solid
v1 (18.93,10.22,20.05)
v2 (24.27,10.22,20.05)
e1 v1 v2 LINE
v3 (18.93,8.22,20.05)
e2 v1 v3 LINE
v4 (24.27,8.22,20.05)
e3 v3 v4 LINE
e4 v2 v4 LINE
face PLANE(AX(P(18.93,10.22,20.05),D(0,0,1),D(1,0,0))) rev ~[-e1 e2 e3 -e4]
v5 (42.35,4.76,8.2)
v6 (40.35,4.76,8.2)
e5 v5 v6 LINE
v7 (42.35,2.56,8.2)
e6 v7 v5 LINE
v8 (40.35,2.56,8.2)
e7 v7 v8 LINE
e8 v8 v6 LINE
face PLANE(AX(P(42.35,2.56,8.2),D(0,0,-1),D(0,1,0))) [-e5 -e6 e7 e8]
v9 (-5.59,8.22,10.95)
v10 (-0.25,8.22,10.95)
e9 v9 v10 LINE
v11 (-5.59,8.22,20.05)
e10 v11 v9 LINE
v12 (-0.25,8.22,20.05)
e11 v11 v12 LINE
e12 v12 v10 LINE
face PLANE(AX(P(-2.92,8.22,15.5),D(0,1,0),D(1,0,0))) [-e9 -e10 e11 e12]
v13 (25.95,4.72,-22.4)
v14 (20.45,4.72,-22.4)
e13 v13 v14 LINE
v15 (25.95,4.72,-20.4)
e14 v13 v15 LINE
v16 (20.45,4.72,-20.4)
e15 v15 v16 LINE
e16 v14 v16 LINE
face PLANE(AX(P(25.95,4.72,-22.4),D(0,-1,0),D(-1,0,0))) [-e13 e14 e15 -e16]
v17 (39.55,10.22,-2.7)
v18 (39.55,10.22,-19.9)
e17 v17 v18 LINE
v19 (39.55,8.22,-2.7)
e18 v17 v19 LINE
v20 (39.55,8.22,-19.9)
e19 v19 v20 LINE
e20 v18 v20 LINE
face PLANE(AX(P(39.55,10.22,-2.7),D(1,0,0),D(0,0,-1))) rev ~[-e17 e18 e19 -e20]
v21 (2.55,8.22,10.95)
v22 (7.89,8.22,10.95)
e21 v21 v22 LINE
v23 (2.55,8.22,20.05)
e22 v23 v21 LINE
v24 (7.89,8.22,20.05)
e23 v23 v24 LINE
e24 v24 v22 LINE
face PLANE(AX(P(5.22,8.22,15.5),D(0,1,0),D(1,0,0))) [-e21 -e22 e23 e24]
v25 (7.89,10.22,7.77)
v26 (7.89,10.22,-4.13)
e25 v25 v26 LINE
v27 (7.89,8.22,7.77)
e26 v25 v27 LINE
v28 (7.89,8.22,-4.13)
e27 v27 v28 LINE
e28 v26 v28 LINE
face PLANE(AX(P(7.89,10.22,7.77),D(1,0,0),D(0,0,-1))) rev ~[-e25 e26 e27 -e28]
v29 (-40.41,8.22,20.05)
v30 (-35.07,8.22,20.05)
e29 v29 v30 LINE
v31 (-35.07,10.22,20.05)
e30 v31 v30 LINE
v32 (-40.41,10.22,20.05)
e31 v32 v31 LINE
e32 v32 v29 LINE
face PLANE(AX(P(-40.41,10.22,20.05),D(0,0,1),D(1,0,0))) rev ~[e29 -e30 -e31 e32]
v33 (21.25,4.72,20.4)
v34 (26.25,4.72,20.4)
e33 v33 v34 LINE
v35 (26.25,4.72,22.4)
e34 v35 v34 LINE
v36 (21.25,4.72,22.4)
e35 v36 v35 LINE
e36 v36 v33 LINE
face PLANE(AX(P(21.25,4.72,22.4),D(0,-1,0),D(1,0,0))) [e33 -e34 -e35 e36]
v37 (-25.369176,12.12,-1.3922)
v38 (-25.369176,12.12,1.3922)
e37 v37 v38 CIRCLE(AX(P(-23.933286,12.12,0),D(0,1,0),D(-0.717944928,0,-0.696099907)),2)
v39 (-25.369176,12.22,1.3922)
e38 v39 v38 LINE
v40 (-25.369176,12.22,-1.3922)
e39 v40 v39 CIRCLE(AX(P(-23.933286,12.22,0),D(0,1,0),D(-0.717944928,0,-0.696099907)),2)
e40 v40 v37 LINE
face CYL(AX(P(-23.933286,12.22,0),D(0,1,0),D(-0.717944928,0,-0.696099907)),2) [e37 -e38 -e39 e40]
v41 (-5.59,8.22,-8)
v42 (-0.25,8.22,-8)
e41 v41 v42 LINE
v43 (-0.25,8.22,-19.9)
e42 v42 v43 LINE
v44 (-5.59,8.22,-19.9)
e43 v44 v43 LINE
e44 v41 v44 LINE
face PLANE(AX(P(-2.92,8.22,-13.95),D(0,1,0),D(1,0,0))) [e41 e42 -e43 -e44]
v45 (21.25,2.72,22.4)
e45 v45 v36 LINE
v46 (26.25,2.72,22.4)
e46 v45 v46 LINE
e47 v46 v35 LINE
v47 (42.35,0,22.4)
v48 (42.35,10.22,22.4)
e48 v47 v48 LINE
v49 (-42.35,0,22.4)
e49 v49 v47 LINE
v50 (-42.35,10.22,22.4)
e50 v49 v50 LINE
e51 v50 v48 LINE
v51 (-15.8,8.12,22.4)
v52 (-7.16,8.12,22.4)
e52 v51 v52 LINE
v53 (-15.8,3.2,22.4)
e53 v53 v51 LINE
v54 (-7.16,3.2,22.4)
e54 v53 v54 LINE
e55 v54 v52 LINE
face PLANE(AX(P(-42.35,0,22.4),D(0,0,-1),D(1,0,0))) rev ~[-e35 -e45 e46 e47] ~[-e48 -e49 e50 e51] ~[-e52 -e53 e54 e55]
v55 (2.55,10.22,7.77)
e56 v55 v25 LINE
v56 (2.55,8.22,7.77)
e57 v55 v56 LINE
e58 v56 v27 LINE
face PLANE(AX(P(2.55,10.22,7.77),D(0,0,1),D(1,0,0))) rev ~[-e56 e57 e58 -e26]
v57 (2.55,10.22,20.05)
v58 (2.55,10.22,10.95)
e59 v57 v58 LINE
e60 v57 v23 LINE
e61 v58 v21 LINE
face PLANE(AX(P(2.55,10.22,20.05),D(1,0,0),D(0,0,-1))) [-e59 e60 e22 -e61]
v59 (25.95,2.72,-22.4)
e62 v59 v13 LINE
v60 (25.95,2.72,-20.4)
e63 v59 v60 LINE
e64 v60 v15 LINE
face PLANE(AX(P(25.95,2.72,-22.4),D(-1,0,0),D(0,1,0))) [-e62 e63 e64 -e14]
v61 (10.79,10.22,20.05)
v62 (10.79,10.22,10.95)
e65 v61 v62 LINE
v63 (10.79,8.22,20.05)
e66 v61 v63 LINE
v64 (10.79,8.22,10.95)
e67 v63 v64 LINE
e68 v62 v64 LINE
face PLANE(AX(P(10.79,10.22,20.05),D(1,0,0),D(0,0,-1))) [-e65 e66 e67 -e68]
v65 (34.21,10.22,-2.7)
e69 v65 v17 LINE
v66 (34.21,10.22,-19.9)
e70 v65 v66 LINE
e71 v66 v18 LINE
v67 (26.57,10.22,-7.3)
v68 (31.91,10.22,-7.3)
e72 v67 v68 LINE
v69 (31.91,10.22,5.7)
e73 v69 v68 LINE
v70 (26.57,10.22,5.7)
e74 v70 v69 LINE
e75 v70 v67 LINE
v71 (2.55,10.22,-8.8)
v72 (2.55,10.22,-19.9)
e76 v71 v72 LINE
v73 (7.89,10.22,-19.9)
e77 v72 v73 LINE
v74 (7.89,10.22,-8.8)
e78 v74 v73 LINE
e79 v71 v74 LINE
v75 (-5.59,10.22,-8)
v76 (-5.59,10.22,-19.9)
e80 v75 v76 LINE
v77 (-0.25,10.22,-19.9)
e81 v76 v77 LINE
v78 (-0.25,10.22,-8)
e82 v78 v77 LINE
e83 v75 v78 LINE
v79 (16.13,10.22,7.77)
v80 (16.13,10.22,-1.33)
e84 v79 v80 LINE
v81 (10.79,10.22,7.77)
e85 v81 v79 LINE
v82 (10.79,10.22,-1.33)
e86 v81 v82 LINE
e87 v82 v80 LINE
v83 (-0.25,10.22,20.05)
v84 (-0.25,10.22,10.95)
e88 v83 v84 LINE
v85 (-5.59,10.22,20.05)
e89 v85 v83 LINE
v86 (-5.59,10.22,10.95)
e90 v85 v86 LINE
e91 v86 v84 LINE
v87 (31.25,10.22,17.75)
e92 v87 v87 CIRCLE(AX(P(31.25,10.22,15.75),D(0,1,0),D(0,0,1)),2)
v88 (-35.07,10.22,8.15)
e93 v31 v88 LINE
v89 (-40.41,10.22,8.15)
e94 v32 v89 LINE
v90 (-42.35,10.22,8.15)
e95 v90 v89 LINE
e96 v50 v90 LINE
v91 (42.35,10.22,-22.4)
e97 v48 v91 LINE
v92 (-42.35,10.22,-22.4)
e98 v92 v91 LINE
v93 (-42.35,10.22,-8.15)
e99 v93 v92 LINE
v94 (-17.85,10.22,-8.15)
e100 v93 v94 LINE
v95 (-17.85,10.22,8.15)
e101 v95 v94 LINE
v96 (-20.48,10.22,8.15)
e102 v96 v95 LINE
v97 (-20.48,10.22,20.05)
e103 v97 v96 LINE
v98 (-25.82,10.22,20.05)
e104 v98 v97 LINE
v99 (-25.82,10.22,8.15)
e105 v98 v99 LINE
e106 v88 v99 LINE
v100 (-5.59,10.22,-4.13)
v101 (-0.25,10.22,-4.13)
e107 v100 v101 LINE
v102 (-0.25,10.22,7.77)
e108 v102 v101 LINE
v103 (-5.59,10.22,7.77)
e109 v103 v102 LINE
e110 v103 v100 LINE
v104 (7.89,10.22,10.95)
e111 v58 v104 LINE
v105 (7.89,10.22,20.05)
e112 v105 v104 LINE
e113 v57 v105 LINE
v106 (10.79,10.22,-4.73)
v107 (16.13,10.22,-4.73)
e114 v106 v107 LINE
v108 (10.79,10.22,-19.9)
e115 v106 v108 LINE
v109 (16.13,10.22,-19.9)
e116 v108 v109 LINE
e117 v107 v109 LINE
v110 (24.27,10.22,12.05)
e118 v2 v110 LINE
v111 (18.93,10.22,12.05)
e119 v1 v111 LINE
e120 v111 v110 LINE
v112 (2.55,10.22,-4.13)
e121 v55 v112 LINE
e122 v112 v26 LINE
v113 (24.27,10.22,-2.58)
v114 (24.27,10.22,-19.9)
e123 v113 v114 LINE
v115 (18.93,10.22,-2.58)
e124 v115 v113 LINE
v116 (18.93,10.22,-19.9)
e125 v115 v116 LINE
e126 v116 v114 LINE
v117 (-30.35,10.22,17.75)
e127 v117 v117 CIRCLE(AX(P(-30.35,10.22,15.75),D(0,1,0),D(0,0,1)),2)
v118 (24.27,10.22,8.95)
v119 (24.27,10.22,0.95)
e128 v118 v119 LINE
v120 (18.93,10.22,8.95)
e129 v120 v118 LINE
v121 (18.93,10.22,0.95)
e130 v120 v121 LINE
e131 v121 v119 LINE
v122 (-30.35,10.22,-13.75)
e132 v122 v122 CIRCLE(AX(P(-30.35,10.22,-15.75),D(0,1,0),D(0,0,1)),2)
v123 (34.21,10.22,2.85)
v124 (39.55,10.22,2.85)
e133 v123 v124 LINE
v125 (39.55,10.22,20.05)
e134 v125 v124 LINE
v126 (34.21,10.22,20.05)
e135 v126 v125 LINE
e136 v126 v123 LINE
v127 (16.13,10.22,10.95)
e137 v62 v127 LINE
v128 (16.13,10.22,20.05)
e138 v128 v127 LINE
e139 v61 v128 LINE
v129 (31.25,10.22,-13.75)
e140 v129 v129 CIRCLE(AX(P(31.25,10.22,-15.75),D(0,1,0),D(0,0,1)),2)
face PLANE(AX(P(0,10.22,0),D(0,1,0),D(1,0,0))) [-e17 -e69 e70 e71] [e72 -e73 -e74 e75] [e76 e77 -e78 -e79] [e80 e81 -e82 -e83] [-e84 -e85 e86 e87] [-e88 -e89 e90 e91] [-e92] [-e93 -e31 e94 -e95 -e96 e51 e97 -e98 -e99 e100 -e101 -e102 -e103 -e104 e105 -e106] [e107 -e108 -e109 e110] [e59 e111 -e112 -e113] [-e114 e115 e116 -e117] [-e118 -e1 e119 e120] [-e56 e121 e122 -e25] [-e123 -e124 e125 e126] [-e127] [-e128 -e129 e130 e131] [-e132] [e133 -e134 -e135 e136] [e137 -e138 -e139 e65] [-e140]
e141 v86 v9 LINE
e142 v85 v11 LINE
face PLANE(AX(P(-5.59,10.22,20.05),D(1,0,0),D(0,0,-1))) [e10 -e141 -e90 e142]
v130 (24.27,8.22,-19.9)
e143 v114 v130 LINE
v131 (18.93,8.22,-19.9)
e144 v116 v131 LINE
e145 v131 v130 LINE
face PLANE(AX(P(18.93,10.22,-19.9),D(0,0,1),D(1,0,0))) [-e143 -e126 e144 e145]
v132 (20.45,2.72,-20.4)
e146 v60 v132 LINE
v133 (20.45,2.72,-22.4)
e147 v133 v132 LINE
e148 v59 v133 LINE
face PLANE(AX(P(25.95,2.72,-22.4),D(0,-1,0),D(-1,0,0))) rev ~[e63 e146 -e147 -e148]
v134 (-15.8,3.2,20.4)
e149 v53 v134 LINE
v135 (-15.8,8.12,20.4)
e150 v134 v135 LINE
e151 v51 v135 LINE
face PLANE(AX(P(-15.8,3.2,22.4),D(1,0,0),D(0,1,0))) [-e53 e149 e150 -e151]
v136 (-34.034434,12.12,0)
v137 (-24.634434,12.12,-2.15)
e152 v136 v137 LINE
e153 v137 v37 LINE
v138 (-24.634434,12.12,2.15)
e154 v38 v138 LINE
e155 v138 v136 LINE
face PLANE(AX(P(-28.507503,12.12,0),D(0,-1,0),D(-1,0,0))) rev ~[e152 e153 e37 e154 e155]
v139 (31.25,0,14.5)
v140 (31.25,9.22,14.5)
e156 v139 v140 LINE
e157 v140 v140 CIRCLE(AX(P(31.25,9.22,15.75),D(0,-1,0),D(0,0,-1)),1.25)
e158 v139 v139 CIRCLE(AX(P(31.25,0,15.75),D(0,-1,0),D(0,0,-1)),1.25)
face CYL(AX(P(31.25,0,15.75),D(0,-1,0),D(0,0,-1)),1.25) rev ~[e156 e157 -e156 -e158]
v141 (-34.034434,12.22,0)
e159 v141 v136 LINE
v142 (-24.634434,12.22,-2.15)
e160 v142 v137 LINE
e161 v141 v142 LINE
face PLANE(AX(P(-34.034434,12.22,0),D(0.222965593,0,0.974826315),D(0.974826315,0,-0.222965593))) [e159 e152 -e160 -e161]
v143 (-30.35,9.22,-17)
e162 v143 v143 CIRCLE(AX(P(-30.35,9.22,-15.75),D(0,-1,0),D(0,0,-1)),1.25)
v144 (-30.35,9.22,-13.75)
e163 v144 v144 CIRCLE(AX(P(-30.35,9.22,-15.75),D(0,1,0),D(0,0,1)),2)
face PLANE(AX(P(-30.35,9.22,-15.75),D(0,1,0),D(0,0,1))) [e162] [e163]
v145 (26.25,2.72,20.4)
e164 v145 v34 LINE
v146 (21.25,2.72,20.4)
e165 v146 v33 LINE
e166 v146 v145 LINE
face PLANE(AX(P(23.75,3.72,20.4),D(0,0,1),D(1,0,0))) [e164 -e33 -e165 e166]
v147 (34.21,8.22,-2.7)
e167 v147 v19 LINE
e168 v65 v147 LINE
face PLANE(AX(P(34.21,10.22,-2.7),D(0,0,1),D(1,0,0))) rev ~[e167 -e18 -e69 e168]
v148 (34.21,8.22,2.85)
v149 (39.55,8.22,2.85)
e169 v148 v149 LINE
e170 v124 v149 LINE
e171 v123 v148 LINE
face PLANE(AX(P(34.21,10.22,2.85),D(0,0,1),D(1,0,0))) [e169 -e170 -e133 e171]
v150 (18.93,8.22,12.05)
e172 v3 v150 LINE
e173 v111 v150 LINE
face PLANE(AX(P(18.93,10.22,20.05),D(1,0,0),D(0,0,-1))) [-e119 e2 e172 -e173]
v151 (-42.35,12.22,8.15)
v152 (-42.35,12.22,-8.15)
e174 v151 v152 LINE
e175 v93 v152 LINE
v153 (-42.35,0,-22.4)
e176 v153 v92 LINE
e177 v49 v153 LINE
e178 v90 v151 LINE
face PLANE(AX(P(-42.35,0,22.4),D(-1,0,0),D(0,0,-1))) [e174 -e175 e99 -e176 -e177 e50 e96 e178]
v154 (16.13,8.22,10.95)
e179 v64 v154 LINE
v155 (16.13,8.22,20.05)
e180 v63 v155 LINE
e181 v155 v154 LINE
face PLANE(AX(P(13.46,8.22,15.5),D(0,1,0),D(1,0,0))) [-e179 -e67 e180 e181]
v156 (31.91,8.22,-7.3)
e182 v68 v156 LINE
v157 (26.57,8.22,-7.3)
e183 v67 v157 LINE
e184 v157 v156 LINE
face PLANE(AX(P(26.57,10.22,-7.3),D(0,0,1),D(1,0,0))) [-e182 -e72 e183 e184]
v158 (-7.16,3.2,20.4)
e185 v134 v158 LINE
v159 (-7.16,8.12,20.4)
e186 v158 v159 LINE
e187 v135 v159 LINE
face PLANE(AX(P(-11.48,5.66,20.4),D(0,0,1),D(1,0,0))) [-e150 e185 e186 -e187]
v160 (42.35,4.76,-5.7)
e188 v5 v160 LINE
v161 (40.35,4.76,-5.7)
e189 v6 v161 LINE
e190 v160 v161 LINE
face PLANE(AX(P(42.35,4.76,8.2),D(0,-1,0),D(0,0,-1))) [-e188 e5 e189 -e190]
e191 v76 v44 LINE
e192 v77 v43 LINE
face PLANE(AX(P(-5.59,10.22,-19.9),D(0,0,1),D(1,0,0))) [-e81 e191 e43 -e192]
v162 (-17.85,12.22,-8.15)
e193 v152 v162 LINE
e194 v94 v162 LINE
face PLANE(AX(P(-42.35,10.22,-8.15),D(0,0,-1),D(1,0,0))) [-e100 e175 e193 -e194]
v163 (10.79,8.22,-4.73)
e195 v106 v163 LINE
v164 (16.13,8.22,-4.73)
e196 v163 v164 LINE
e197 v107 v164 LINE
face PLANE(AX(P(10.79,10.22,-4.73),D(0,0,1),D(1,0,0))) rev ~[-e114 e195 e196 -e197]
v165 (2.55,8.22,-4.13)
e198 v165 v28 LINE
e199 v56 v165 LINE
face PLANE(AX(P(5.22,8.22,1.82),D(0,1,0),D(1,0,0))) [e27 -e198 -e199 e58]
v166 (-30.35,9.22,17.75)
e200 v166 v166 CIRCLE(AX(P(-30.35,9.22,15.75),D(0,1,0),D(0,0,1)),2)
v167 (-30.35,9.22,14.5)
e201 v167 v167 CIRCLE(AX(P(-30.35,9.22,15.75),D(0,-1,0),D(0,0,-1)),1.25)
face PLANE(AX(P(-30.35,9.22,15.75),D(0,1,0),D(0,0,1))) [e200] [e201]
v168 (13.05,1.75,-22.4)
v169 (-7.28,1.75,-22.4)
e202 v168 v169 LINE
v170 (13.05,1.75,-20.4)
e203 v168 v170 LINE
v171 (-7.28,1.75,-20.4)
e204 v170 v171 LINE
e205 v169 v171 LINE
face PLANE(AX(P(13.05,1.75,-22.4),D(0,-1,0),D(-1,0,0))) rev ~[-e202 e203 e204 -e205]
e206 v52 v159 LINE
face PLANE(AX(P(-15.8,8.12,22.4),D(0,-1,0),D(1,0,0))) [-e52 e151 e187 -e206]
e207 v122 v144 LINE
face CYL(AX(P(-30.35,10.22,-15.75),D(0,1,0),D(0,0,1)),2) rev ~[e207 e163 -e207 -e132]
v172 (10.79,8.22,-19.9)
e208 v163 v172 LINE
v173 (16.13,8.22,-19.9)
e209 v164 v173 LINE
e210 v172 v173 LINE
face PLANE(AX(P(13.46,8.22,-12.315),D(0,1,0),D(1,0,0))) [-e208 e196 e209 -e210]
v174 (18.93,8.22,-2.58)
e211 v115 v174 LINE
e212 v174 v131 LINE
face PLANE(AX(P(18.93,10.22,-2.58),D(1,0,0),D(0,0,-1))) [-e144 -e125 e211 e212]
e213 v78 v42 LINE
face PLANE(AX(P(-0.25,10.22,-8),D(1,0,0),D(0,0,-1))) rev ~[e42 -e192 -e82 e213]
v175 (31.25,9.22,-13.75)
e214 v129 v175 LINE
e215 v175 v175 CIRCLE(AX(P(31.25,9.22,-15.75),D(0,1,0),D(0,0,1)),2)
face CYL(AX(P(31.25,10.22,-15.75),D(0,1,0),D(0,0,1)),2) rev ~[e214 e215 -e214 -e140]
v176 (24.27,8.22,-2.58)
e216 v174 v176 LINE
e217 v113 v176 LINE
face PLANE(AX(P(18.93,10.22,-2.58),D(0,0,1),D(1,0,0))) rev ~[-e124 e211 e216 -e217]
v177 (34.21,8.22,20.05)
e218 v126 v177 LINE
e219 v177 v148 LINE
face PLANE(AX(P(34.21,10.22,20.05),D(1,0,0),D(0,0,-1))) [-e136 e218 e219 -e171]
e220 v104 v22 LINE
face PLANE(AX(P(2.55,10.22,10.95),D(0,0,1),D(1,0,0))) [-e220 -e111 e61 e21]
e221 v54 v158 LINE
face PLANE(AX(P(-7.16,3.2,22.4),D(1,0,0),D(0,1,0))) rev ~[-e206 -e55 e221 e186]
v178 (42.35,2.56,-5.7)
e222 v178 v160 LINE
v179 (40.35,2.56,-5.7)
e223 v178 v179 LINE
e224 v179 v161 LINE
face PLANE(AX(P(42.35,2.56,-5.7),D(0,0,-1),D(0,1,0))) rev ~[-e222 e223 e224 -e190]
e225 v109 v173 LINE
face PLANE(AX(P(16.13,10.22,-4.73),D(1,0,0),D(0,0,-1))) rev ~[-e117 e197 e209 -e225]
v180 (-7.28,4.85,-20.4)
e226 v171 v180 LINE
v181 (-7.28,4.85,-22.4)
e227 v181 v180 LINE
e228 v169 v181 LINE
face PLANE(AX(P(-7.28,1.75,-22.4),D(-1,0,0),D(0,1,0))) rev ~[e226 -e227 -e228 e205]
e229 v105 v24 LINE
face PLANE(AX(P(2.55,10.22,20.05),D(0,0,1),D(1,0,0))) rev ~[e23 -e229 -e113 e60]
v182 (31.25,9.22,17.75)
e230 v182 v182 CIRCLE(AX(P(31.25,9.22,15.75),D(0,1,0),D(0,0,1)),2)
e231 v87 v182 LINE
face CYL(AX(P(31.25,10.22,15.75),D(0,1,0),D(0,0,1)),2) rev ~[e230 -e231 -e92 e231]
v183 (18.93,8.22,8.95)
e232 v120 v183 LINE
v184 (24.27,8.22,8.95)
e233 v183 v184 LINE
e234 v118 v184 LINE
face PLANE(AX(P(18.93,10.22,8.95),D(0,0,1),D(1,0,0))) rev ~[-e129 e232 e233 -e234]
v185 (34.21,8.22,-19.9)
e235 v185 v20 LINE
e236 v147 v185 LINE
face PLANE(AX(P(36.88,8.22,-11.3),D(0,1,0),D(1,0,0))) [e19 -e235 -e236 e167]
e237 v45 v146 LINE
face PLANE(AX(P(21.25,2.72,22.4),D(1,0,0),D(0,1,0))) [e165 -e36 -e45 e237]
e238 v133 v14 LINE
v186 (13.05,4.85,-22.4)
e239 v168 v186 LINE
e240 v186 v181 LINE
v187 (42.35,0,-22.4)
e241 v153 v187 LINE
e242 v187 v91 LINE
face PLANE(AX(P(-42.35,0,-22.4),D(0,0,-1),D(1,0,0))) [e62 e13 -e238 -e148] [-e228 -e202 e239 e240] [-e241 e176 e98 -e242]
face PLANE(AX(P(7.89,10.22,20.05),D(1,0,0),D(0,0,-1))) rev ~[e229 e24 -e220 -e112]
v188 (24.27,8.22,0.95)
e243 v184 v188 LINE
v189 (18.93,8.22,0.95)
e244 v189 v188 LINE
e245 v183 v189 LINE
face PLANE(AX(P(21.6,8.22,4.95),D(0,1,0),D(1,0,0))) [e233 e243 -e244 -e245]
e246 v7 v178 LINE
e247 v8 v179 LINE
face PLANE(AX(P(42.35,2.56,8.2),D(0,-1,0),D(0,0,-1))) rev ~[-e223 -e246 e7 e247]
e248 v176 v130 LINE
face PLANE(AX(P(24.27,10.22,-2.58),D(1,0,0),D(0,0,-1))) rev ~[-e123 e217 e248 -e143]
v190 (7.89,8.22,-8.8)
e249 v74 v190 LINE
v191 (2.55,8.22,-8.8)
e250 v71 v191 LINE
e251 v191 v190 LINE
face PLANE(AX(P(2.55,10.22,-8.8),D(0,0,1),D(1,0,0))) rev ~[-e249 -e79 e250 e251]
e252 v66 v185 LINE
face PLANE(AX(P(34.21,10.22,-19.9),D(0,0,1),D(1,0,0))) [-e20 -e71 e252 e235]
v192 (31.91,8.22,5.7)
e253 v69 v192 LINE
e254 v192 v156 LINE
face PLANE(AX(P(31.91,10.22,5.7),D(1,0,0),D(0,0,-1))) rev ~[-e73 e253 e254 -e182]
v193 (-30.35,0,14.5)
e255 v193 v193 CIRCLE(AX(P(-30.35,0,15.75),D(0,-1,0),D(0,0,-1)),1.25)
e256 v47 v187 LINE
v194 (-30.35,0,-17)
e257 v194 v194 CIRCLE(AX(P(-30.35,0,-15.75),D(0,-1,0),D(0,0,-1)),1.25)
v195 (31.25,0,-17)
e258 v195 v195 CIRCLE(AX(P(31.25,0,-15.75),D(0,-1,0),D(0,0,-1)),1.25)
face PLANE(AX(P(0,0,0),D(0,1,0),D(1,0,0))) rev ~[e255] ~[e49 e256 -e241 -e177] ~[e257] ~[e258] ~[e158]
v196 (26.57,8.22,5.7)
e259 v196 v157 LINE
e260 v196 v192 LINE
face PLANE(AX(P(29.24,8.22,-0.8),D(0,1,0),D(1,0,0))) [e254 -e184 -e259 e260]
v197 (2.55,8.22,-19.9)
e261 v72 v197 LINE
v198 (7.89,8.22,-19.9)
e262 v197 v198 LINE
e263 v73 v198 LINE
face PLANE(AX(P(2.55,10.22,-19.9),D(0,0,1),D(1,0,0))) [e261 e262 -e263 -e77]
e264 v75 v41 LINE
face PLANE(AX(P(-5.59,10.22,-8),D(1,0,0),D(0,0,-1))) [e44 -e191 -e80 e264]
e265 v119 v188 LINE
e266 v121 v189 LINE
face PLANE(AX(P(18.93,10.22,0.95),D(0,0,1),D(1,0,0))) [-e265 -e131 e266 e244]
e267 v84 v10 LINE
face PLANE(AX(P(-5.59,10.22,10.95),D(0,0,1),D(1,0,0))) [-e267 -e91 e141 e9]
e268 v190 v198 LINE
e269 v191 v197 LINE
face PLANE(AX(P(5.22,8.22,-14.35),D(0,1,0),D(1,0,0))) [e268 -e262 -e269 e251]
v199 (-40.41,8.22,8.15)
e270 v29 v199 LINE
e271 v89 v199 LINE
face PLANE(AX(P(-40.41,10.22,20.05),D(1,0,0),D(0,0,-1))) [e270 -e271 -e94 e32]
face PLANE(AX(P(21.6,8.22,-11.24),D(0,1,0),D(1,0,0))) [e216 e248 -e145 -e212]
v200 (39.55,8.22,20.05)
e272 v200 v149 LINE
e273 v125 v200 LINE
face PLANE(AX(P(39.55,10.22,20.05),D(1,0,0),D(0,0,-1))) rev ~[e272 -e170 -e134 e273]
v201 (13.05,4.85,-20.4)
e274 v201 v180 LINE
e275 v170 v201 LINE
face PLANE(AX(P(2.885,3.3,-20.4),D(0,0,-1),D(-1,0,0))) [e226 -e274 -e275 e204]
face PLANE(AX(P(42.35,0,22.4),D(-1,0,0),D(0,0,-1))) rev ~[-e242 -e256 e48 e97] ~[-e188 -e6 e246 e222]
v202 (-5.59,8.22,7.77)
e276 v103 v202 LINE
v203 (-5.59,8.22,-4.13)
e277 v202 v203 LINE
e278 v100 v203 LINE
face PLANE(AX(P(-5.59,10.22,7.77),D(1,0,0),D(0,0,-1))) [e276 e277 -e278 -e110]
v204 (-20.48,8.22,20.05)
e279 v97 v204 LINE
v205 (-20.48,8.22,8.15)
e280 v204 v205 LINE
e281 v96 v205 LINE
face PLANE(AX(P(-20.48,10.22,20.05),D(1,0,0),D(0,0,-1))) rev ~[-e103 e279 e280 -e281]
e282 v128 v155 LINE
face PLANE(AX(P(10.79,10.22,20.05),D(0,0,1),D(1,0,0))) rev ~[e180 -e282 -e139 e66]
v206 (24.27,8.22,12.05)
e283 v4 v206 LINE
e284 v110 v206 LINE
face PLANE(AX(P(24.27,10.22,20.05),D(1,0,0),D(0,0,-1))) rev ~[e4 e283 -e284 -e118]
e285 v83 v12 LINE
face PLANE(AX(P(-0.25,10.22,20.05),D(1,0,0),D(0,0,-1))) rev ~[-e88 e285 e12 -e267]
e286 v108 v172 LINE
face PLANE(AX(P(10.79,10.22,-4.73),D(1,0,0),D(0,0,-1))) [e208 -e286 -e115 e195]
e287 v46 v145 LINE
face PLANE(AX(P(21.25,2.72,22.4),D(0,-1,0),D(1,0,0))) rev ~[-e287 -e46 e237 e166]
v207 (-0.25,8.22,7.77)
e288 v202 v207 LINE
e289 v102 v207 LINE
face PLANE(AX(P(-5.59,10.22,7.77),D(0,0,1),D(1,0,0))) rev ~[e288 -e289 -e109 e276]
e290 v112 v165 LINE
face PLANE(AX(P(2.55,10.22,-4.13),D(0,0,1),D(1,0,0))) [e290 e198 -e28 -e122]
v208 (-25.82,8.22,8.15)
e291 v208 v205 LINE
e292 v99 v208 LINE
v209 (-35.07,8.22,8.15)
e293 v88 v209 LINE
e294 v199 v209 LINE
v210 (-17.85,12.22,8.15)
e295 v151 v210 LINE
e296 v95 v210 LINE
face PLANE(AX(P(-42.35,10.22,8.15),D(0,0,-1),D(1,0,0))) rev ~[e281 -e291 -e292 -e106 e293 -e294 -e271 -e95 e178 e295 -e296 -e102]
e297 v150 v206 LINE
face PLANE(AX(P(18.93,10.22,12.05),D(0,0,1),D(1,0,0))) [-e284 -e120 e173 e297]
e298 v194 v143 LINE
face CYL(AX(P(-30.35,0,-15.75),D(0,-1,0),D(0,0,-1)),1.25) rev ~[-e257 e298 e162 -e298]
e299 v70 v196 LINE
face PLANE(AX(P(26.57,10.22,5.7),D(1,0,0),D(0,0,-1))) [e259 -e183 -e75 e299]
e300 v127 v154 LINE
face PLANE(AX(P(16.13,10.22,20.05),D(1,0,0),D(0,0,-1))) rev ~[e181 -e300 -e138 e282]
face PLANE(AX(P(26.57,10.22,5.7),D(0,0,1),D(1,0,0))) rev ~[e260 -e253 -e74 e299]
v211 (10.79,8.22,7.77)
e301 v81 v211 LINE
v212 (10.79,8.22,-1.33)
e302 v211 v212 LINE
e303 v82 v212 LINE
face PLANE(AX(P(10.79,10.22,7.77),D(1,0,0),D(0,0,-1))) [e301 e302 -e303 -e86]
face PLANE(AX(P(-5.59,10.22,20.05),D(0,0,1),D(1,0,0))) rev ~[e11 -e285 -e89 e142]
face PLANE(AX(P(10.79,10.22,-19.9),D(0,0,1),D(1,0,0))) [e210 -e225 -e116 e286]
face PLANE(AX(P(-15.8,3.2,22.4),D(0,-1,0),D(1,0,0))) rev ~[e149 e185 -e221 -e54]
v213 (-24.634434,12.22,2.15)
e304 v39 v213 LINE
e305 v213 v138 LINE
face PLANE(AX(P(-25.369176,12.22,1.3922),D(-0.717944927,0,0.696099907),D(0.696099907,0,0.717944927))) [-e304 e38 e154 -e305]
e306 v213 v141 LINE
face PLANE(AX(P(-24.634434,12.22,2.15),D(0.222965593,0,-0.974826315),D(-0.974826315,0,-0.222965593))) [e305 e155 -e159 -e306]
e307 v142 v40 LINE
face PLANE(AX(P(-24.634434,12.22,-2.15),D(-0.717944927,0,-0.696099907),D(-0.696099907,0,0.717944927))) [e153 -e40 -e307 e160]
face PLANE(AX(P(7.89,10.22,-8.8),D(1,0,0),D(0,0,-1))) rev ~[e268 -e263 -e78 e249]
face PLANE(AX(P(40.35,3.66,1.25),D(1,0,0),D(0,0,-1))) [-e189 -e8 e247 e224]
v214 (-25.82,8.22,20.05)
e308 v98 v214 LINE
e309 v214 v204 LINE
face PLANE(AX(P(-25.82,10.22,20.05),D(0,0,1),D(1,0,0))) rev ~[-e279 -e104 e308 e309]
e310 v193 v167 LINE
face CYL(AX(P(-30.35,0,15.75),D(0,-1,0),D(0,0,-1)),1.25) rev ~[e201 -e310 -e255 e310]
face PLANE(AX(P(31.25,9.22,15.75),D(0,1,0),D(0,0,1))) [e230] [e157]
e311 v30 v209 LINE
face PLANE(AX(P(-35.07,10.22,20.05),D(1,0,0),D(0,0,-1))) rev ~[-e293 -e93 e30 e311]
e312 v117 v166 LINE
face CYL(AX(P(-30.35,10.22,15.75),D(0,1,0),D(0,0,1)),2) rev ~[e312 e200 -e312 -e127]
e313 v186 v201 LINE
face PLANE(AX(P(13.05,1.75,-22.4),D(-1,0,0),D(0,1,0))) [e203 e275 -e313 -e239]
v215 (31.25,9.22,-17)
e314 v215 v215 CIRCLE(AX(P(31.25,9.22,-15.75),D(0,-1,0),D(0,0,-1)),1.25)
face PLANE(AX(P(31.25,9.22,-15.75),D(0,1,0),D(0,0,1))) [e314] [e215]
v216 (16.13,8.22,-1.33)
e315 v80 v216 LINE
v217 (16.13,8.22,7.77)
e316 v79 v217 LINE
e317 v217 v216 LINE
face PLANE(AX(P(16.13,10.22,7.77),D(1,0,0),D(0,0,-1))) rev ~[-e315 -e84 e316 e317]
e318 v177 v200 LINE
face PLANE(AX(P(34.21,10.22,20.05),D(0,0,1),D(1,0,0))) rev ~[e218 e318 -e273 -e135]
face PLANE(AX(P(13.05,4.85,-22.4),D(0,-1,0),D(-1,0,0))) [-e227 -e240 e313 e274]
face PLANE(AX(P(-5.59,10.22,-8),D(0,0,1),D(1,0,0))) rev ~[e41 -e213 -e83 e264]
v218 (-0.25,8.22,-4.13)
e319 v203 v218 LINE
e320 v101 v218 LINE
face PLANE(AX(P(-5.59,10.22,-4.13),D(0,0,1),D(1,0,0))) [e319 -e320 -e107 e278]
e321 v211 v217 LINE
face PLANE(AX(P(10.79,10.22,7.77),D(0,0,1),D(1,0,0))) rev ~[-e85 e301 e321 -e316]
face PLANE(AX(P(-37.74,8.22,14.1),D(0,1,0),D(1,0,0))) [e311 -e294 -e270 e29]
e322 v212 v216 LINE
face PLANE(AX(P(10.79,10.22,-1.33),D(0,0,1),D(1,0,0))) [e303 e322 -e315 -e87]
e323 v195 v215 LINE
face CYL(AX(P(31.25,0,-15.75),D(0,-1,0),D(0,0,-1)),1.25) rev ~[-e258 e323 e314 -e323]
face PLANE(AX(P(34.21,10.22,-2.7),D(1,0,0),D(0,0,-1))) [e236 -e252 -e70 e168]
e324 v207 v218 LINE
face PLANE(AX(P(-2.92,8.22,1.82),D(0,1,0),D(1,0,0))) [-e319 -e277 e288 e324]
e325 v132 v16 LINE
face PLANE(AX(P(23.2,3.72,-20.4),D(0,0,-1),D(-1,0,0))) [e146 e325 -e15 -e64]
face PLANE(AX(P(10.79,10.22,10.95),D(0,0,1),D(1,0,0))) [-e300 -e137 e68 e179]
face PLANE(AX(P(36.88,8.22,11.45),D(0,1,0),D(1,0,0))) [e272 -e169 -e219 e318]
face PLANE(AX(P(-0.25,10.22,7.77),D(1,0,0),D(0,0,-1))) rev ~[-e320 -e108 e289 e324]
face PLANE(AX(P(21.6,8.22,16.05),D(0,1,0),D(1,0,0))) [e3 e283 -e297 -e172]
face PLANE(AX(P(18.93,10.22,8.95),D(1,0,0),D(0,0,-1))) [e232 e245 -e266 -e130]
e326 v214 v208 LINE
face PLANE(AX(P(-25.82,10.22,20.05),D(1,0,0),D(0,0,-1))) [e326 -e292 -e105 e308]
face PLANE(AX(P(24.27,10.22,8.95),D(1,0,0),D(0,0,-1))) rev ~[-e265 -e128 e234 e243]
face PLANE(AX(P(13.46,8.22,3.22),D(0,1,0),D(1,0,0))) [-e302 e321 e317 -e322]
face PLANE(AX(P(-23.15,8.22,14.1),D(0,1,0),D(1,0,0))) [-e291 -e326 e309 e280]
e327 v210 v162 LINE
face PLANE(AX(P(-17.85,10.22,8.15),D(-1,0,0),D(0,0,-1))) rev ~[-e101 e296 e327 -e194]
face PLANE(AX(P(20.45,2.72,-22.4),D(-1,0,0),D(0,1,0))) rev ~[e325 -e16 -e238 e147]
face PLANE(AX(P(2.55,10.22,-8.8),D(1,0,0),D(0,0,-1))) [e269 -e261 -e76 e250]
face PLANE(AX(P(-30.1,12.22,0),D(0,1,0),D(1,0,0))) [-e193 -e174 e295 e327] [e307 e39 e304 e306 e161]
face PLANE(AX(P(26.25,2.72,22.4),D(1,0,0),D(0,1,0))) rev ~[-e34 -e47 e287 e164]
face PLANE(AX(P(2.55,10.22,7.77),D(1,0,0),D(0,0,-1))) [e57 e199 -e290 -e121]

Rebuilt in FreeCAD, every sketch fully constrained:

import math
import FreeCAD as App
import Part
import Sketcher
from FreeCAD import Vector
Q = App.Units.Quantity


def add_polygon(sketch, points):
    """Adds a closed chain of lines whose ends are joined by coincident constraints."""
    first, n = sketch.GeometryCount, len(points)
    for a, b in zip(points, points[1:] + points[:1]):
        sketch.addGeometry(Part.LineSegment(App.Vector(*a, 0), App.Vector(*b, 0)), False)
    for i in range(n):
        sketch.addConstraint(Sketcher.Constraint("Coincident", first + i, 2, first + (i + 1) % n, 1))

doc = App.newDocument("Part")
body = doc.addObject("PartDesign::Body", "Body")

# Sketch on XZ plane
sketch1 = body.newObject("Sketcher::SketchObject", "Sketch")
sketch1.AttachmentSupport = (doc.getObject("XZ_Plane"), [""])
sketch1.MapMode = "FlatFace"
add_polygon(sketch1, [(-42.35, -22.4), (-42.35, 22.4), (42.35, 22.4), (42.35, -22.4)])  # lines 0-3
sketch1.addConstraint(Sketcher.Constraint("Vertical", 0))
sketch1.addConstraint(Sketcher.Constraint("Horizontal", 1))
sketch1.addConstraint(Sketcher.Constraint("Vertical", 2))
sketch1.addConstraint(Sketcher.Constraint("Horizontal", 3))
sketch1.addConstraint(Sketcher.Constraint("Symmetric", 0, 2, 2, 2, -1, 1))
sketch1.addConstraint(Sketcher.Constraint("DistanceX", 1, 1, 1, 2, Q("84.7 mm")))
sketch1.addConstraint(Sketcher.Constraint("DistanceY", 0, 1, 0, 2, Q("44.8 mm")))
pad1 = body.newObject("PartDesign::Pad", "Pad")
pad1.Profile = sketch1
pad1.Length = 10.22
pad1.Reversed = True

# Sketch on XZ plane
sketch2 = body.newObject("Sketcher::SketchObject", "Sketch001")
sketch2.AttachmentSupport = (doc.getObject("XZ_Plane"), [""])
sketch2.MapMode = "FlatFace"
sketch2.AttachmentOffset = App.Placement(Vector(0, 0, -10.22), App.Rotation())
add_polygon(sketch2, [(-42.35, -8.15), (-42.35, 8.15), (-17.85, 8.15), (-17.85, -8.15)])  # lines 0-3
sketch2.addConstraint(Sketcher.Constraint("Vertical", 0))
sketch2.addConstraint(Sketcher.Constraint("Horizontal", 1))
sketch2.addConstraint(Sketcher.Constraint("Vertical", 2))
sketch2.addConstraint(Sketcher.Constraint("Horizontal", 3))
sketch2.addConstraint(Sketcher.Constraint("DistanceX", 1, 1, 1, 2, Q("24.5 mm")))
sketch2.addConstraint(Sketcher.Constraint("DistanceY", 0, 1, 0, 2, Q("16.3 mm")))
sketch2.addConstraint(Sketcher.Constraint("DistanceX", 0, 2, -1, 1, Q("42.35 mm")))
sketch2.addConstraint(Sketcher.Constraint("DistanceY", -1, 1, 0, 2, Q("8.15 mm")))
pad2 = body.newObject("PartDesign::Pad", "Pad001")
pad2.Profile = sketch2
pad2.Length = 2
pad2.Reversed = True

# Sketch on XZ plane
sketch3 = body.newObject("Sketcher::SketchObject", "Sketch002")
sketch3.AttachmentSupport = (doc.getObject("XZ_Plane"), [""])
sketch3.MapMode = "FlatFace"
sketch3.AttachmentOffset = App.Placement(Vector(0, 0, -10.22), App.Rotation())
add_polygon(sketch3, [(-40.41, 8.15), (-40.41, 20.05), (-35.07, 20.05), (-35.07, 8.15)])  # lines 0-3
add_polygon(sketch3, [(-25.82, 8.15), (-25.82, 20.05), (-20.48, 20.05), (-20.48, 8.15)])  # lines 4-7
add_polygon(sketch3, [(-5.59, 10.95), (-5.59, 20.05), (-0.25, 20.05), (-0.25, 10.95)])  # lines 8-11
add_polygon(sketch3, [(2.55, 10.95), (2.55, 20.05), (7.89, 20.05), (7.89, 10.95)])  # lines 12-15
add_polygon(sketch3, [(10.79, 10.95), (10.79, 20.05), (16.13, 20.05), (16.13, 10.95)])  # lines 16-19
add_polygon(sketch3, [(18.93, 12.05), (18.93, 20.05), (24.27, 20.05), (24.27, 12.05)])  # lines 20-23
add_polygon(sketch3, [(18.93, 0.95), (18.93, 8.95), (24.27, 8.95), (24.27, 0.95)])  # lines 24-27
add_polygon(sketch3, [(34.21, 2.85), (34.21, 20.05), (39.55, 20.05), (39.55, 2.85)])  # lines 28-31
add_polygon(sketch3, [(-5.59, -4.13), (-5.59, 7.77), (-0.25, 7.77), (-0.25, -4.13)])  # lines 32-35
add_polygon(sketch3, [(2.55, -4.13), (2.55, 7.77), (7.89, 7.77), (7.89, -4.13)])  # lines 36-39
add_polygon(sketch3, [(10.79, -1.33), (10.79, 7.77), (16.13, 7.77), (16.13, -1.33)])  # lines 40-43
add_polygon(sketch3, [(-5.59, -19.9), (-5.59, -8), (-0.25, -8), (-0.25, -19.9)])  # lines 44-47
add_polygon(sketch3, [(2.55, -19.9), (2.55, -8.8), (7.89, -8.8), (7.89, -19.9)])  # lines 48-51
add_polygon(sketch3, [(10.79, -19.9), (10.79, -4.73), (16.13, -4.73), (16.13, -19.9)])  # lines 52-55
add_polygon(sketch3, [(18.93, -19.9), (18.93, -2.58), (24.27, -2.58), (24.27, -19.9)])  # lines 56-59
add_polygon(sketch3, [(26.57, -7.3), (26.57, 5.7), (31.91, 5.7), (31.91, -7.3)])  # lines 60-63
add_polygon(sketch3, [(34.21, -19.9), (34.21, -2.7), (39.55, -2.7), (39.55, -19.9)])  # lines 64-67
sketch3.addConstraint(Sketcher.Constraint("Vertical", 0))
sketch3.addConstraint(Sketcher.Constraint("Horizontal", 1))
sketch3.addConstraint(Sketcher.Constraint("Vertical", 2))
sketch3.addConstraint(Sketcher.Constraint("Horizontal", 3))
sketch3.addConstraint(Sketcher.Constraint("Vertical", 4))
sketch3.addConstraint(Sketcher.Constraint("Horizontal", 5))
sketch3.addConstraint(Sketcher.Constraint("Vertical", 6))
sketch3.addConstraint(Sketcher.Constraint("Horizontal", 7))
sketch3.addConstraint(Sketcher.Constraint("Vertical", 8))
sketch3.addConstraint(Sketcher.Constraint("Horizontal", 9))
sketch3.addConstraint(Sketcher.Constraint("Vertical", 10))
sketch3.addConstraint(Sketcher.Constraint("Horizontal", 11))
sketch3.addConstraint(Sketcher.Constraint("Vertical", 12))
sketch3.addConstraint(Sketcher.Constraint("Horizontal", 13))
sketch3.addConstraint(Sketcher.Constraint("Vertical", 14))
sketch3.addConstraint(Sketcher.Constraint("Horizontal", 15))
sketch3.addConstraint(Sketcher.Constraint("Vertical", 16))
sketch3.addConstraint(Sketcher.Constraint("Horizontal", 17))
sketch3.addConstraint(Sketcher.Constraint("Vertical", 18))
sketch3.addConstraint(Sketcher.Constraint("Horizontal", 19))
sketch3.addConstraint(Sketcher.Constraint("Vertical", 20))
sketch3.addConstraint(Sketcher.Constraint("Horizontal", 21))
sketch3.addConstraint(Sketcher.Constraint("Vertical", 22))
sketch3.addConstraint(Sketcher.Constraint("Horizontal", 23))
sketch3.addConstraint(Sketcher.Constraint("Vertical", 24))
sketch3.addConstraint(Sketcher.Constraint("Horizontal", 25))
sketch3.addConstraint(Sketcher.Constraint("Vertical", 26))
sketch3.addConstraint(Sketcher.Constraint("Horizontal", 27))
sketch3.addConstraint(Sketcher.Constraint("Vertical", 28))
sketch3.addConstraint(Sketcher.Constraint("Horizontal", 29))
sketch3.addConstraint(Sketcher.Constraint("Vertical", 30))
sketch3.addConstraint(Sketcher.Constraint("Horizontal", 31))
sketch3.addConstraint(Sketcher.Constraint("Vertical", 32))
sketch3.addConstraint(Sketcher.Constraint("Horizontal", 33))
sketch3.addConstraint(Sketcher.Constraint("Vertical", 34))
sketch3.addConstraint(Sketcher.Constraint("Horizontal", 35))
sketch3.addConstraint(Sketcher.Constraint("Vertical", 36))
sketch3.addConstraint(Sketcher.Constraint("Horizontal", 37))
sketch3.addConstraint(Sketcher.Constraint("Vertical", 38))
sketch3.addConstraint(Sketcher.Constraint("Horizontal", 39))
sketch3.addConstraint(Sketcher.Constraint("Vertical", 40))
sketch3.addConstraint(Sketcher.Constraint("Horizontal", 41))
sketch3.addConstraint(Sketcher.Constraint("Vertical", 42))
sketch3.addConstraint(Sketcher.Constraint("Horizontal", 43))
sketch3.addConstraint(Sketcher.Constraint("Vertical", 44))
sketch3.addConstraint(Sketcher.Constraint("Horizontal", 45))
sketch3.addConstraint(Sketcher.Constraint("Vertical", 46))
sketch3.addConstraint(Sketcher.Constraint("Horizontal", 47))
sketch3.addConstraint(Sketcher.Constraint("Vertical", 48))
sketch3.addConstraint(Sketcher.Constraint("Horizontal", 49))
sketch3.addConstraint(Sketcher.Constraint("Vertical", 50))
sketch3.addConstraint(Sketcher.Constraint("Horizontal", 51))
sketch3.addConstraint(Sketcher.Constraint("Vertical", 52))
sketch3.addConstraint(Sketcher.Constraint("Horizontal", 53))
sketch3.addConstraint(Sketcher.Constraint("Vertical", 54))
sketch3.addConstraint(Sketcher.Constraint("Horizontal", 55))
sketch3.addConstraint(Sketcher.Constraint("Vertical", 56))
sketch3.addConstraint(Sketcher.Constraint("Horizontal", 57))
sketch3.addConstraint(Sketcher.Constraint("Vertical", 58))
sketch3.addConstraint(Sketcher.Constraint("Horizontal", 59))
sketch3.addConstraint(Sketcher.Constraint("Vertical", 60))
sketch3.addConstraint(Sketcher.Constraint("Horizontal", 61))
sketch3.addConstraint(Sketcher.Constraint("Vertical", 62))
sketch3.addConstraint(Sketcher.Constraint("Horizontal", 63))
sketch3.addConstraint(Sketcher.Constraint("Vertical", 64))
sketch3.addConstraint(Sketcher.Constraint("Horizontal", 65))
sketch3.addConstraint(Sketcher.Constraint("Vertical", 66))
sketch3.addConstraint(Sketcher.Constraint("Horizontal", 67))
sketch3.addConstraint(Sketcher.Constraint("Horizontal", 1, 2, 4, 2))
sketch3.addConstraint(Sketcher.Constraint("Horizontal", 3, 2, 6, 2))
sketch3.addConstraint(Sketcher.Constraint("Horizontal", 5, 2, 8, 2))
sketch3.addConstraint(Sketcher.Constraint("Horizontal", 9, 2, 12, 2))
sketch3.addConstraint(Sketcher.Constraint("Horizontal", 11, 2, 14, 2))
sketch3.addConstraint(Sketcher.Constraint("Horizontal", 13, 2, 16, 2))
sketch3.addConstraint(Sketcher.Constraint("Horizontal", 15, 2, 18, 2))
sketch3.addConstraint(Sketcher.Constraint("Horizontal", 17, 2, 20, 2))
sketch3.addConstraint(Sketcher.Constraint("Horizontal", 21, 2, 28, 2))
sketch3.addConstraint(Sketcher.Constraint("Horizontal", 33, 2, 36, 2))
sketch3.addConstraint(Sketcher.Constraint("Horizontal", 35, 2, 38, 2))
sketch3.addConstraint(Sketcher.Constraint("Horizontal", 37, 2, 40, 2))
sketch3.addConstraint(Sketcher.Constraint("Horizontal", 47, 2, 50, 2))
sketch3.addConstraint(Sketcher.Constraint("Horizontal", 51, 2, 54, 2))
sketch3.addConstraint(Sketcher.Constraint("Horizontal", 55, 2, 58, 2))
sketch3.addConstraint(Sketcher.Constraint("Horizontal", 59, 2, 66, 2))
sketch3.addConstraint(Sketcher.Constraint("Vertical", 23, 2, 24, 2))
sketch3.addConstraint(Sketcher.Constraint("Vertical", 22, 2, 25, 2))
sketch3.addConstraint(Sketcher.Constraint("Vertical", 11, 2, 32, 2))
sketch3.addConstraint(Sketcher.Constraint("Vertical", 10, 2, 33, 2))
sketch3.addConstraint(Sketcher.Constraint("Vertical", 15, 2, 36, 2))
sketch3.addConstraint(Sketcher.Constraint("Vertical", 14, 2, 37, 2))
sketch3.addConstraint(Sketcher.Constraint("Vertical", 19, 2, 40, 2))
sketch3.addConstraint(Sketcher.Constraint("Vertical", 18, 2, 41, 2))
sketch3.addConstraint(Sketcher.Constraint("Vertical", 35, 2, 44, 2))
sketch3.addConstraint(Sketcher.Constraint("Vertical", 34, 2, 45, 2))
sketch3.addConstraint(Sketcher.Constraint("Vertical", 39, 2, 48, 2))
sketch3.addConstraint(Sketcher.Constraint("Vertical", 38, 2, 49, 2))
sketch3.addConstraint(Sketcher.Constraint("Vertical", 43, 2, 52, 2))
sketch3.addConstraint(Sketcher.Constraint("Vertical", 42, 2, 53, 2))
sketch3.addConstraint(Sketcher.Constraint("Vertical", 27, 2, 56, 2))
sketch3.addConstraint(Sketcher.Constraint("Vertical", 26, 2, 57, 2))
sketch3.addConstraint(Sketcher.Constraint("Vertical", 31, 2, 64, 2))
sketch3.addConstraint(Sketcher.Constraint("Vertical", 30, 2, 65, 2))
sketch3.addConstraint(Sketcher.Constraint("Equal", 3, 5))
sketch3.addConstraint(Sketcher.Constraint("Equal", 7, 9))
sketch3.addConstraint(Sketcher.Constraint("Equal", 11, 13))
sketch3.addConstraint(Sketcher.Constraint("Equal", 15, 17))
sketch3.addConstraint(Sketcher.Constraint("Equal", 19, 21))
sketch3.addConstraint(Sketcher.Constraint("Equal", 27, 29))
sketch3.addConstraint(Sketcher.Constraint("Equal", 59, 61))
sketch3.addConstraint(Sketcher.Constraint("Equal", 22, 24))
sketch3.addConstraint(Sketcher.Constraint("Equal", 6, 32))
sketch3.addConstraint(Sketcher.Constraint("Equal", 18, 40))
sketch3.addConstraint(Sketcher.Constraint("Equal", 38, 44))
sketch3.addConstraint(Sketcher.Constraint("Equal", 30, 64))
sketch3.addConstraint(Sketcher.Constraint("DistanceY", 20, 1, 20, 2, Q("8 mm")))
sketch3.addConstraint(Sketcher.Constraint("DistanceY", 60, 1, 60, 2, Q("13 mm")))
sketch3.addConstraint(Sketcher.Constraint("DistanceY", 0, 1, 0, 2, Q("11.9 mm")))
sketch3.addConstraint(Sketcher.Constraint("DistanceY", 8, 1, 8, 2, Q("9.1 mm")))
sketch3.addConstraint(Sketcher.Constraint("DistanceY", 28, 1, 28, 2, Q("17.2 mm")))
sketch3.addConstraint(Sketcher.Constraint("DistanceY", 48, 1, 48, 2, Q("11.1 mm")))
sketch3.addConstraint(Sketcher.Constraint("DistanceY", 44, 2, -1, 1, Q("8 mm")))
sketch3.addConstraint(Sketcher.Constraint("DistanceX", 1, 1, 1, 2, Q("5.34 mm")))
sketch3.addConstraint(Sketcher.Constraint("DistanceY", 52, 1, 52, 2, Q("15.17 mm")))
sketch3.addConstraint(Sketcher.Constraint("DistanceY", 56, 1, 56, 2, Q("17.32 mm")))
sketch3.addConstraint(Sketcher.Constraint("DistanceY", -1, 1, 60, 2, Q("5.7 mm")))
sketch3.addConstraint(Sketcher.Constraint("DistanceX", 0, 2, -1, 1, Q("40.41 mm")))
sketch3.addConstraint(Sketcher.Constraint("DistanceY", -1, 1, 0, 2, Q("20.05 mm")))
sketch3.addConstraint(Sketcher.Constraint("DistanceX", 4, 2, -1, 1, Q("25.82 mm")))
sketch3.addConstraint(Sketcher.Constraint("DistanceX", 8, 2, -1, 1, Q("5.59 mm")))
sketch3.addConstraint(Sketcher.Constraint("DistanceX", -1, 1, 12, 2, Q("2.55 mm")))
sketch3.addConstraint(Sketcher.Constraint("DistanceX", -1, 1, 16, 2, Q("10.79 mm")))
sketch3.addConstraint(Sketcher.Constraint("DistanceX", -1, 1, 20, 2, Q("18.93 mm")))
sketch3.addConstraint(Sketcher.Constraint("DistanceY", -1, 1, 24, 2, Q("8.95 mm")))
sketch3.addConstraint(Sketcher.Constraint("DistanceX", -1, 1, 28, 2, Q("34.21 mm")))
sketch3.addConstraint(Sketcher.Constraint("DistanceY", -1, 1, 32, 2, Q("7.77 mm")))
sketch3.addConstraint(Sketcher.Constraint("DistanceX", -1, 1, 60, 2, Q("26.57 mm")))
pocket1 = body.newObject("PartDesign::Pocket", "Pocket")
pocket1.Profile = sketch3
pocket1.Length = 2
pocket1.Reversed = True

# Sketch on XZ plane
sketch4 = body.newObject("Sketcher::SketchObject", "Sketch003")
sketch4.AttachmentSupport = (doc.getObject("XZ_Plane"), [""])
sketch4.MapMode = "FlatFace"
sketch4.addGeometry(Part.Circle(Vector(-30.35, 15.75, 0), Vector(0, 0, 1), 1.25), False)
sketch4.addGeometry(Part.Circle(Vector(31.25, 15.75, 0), Vector(0, 0, 1), 1.25), False)
sketch4.addGeometry(Part.Circle(Vector(31.25, -15.75, 0), Vector(0, 0, 1), 1.25), False)
sketch4.addGeometry(Part.Circle(Vector(-30.35, -15.75, 0), Vector(0, 0, 1), 1.25), False)
sketch4.addConstraint(Sketcher.Constraint("Equal", 0, 1))
sketch4.addConstraint(Sketcher.Constraint("Equal", 1, 2))
sketch4.addConstraint(Sketcher.Constraint("Equal", 2, 3))
sketch4.addConstraint(Sketcher.Constraint("Symmetric", 1, 3, 2, 3, -1))
sketch4.addConstraint(Sketcher.Constraint("Symmetric", 0, 3, 3, 3, -1))
sketch4.addConstraint(Sketcher.Constraint("Horizontal", 0, 3, 1, 3))
sketch4.addConstraint(Sketcher.Constraint("Diameter", 0, Q("2.5 mm")))
sketch4.addConstraint(Sketcher.Constraint("DistanceX", 0, 3, 1, 3, Q("61.6 mm")))
sketch4.addConstraint(Sketcher.Constraint("DistanceY", 2, 3, 1, 3, Q("31.5 mm")))
sketch4.addConstraint(Sketcher.Constraint("DistanceX", 0, 3, -1, 1, Q("30.35 mm")))
pocket2 = body.newObject("PartDesign::Pocket", "Pocket001")
pocket2.Profile = sketch4
pocket2.Type = "ThroughAll"

# Sketch on XZ plane
sketch5 = body.newObject("Sketcher::SketchObject", "Sketch004")
sketch5.AttachmentSupport = (doc.getObject("XZ_Plane"), [""])
sketch5.MapMode = "FlatFace"
sketch5.AttachmentOffset = App.Placement(Vector(0, 0, -10.22), App.Rotation())
sketch5.addGeometry(Part.Circle(Vector(-30.35, -15.75, 0), Vector(0, 0, 1), 2), False)
sketch5.addGeometry(Part.Circle(Vector(-30.35, 15.75, 0), Vector(0, 0, 1), 2), False)
sketch5.addGeometry(Part.Circle(Vector(31.25, -15.75, 0), Vector(0, 0, 1), 2), False)
sketch5.addGeometry(Part.Circle(Vector(31.25, 15.75, 0), Vector(0, 0, 1), 2), False)
sketch5.addConstraint(Sketcher.Constraint("Equal", 0, 1))
sketch5.addConstraint(Sketcher.Constraint("Equal", 1, 2))
sketch5.addConstraint(Sketcher.Constraint("Equal", 2, 3))
sketch5.addConstraint(Sketcher.Constraint("Symmetric", 0, 3, 1, 3, -1))
sketch5.addConstraint(Sketcher.Constraint("Symmetric", 2, 3, 3, 3, -1))
sketch5.addConstraint(Sketcher.Constraint("Horizontal", 0, 3, 2, 3))
sketch5.addConstraint(Sketcher.Constraint("Diameter", 0, Q("4 mm")))
sketch5.addConstraint(Sketcher.Constraint("DistanceY", 0, 3, 1, 3, Q("31.5 mm")))
sketch5.addConstraint(Sketcher.Constraint("DistanceX", 0, 3, 2, 3, Q("61.6 mm")))
sketch5.addConstraint(Sketcher.Constraint("DistanceX", 0, 3, -1, 1, Q("30.35 mm")))
pocket3 = body.newObject("PartDesign::Pocket", "Pocket002")
pocket3.Profile = sketch5
pocket3.Length = 1
pocket3.Reversed = True

# Sketch on XY plane
sketch6 = body.newObject("Sketcher::SketchObject", "Sketch005")
sketch6.AttachmentSupport = (doc.getObject("XY_Plane"), [""])
sketch6.MapMode = "FlatFace"
sketch6.AttachmentOffset = App.Placement(Vector(0, 0, 22.4), App.Rotation())
add_polygon(sketch6, [(-15.8, 8.12), (-15.8, 3.2), (-7.16, 3.2), (-7.16, 8.12)])  # lines 0-3
sketch6.addConstraint(Sketcher.Constraint("Vertical", 0))
sketch6.addConstraint(Sketcher.Constraint("Horizontal", 1))
sketch6.addConstraint(Sketcher.Constraint("Vertical", 2))
sketch6.addConstraint(Sketcher.Constraint("Horizontal", 3))
sketch6.addConstraint(Sketcher.Constraint("DistanceX", 1, 1, 1, 2, Q("8.64 mm")))
sketch6.addConstraint(Sketcher.Constraint("DistanceY", 0, 2, 0, 1, Q("4.92 mm")))
sketch6.addConstraint(Sketcher.Constraint("DistanceX", 0, 2, -1, 1, Q("15.8 mm")))
sketch6.addConstraint(Sketcher.Constraint("DistanceY", -1, 1, 0, 2, Q("3.2 mm")))
pocket4 = body.newObject("PartDesign::Pocket", "Pocket003")
pocket4.Profile = sketch6
pocket4.Length = 2

# Sketch on XY plane
sketch7 = body.newObject("Sketcher::SketchObject", "Sketch006")
sketch7.AttachmentSupport = (doc.getObject("XY_Plane"), [""])
sketch7.MapMode = "FlatFace"
sketch7.AttachmentOffset = App.Placement(Vector(0, 0, 22.4), App.Rotation())
add_polygon(sketch7, [(21.25, 4.72), (21.25, 2.72), (26.25, 2.72), (26.25, 4.72)])  # lines 0-3
sketch7.addConstraint(Sketcher.Constraint("Vertical", 0))
sketch7.addConstraint(Sketcher.Constraint("Horizontal", 1))
sketch7.addConstraint(Sketcher.Constraint("Vertical", 2))
sketch7.addConstraint(Sketcher.Constraint("Horizontal", 3))
sketch7.addConstraint(Sketcher.Constraint("DistanceX", 1, 1, 1, 2, Q("5 mm")))
sketch7.addConstraint(Sketcher.Constraint("DistanceY", 0, 2, 0, 1, Q("2 mm")))
sketch7.addConstraint(Sketcher.Constraint("DistanceX", -1, 1, 0, 2, Q("21.25 mm")))
sketch7.addConstraint(Sketcher.Constraint("DistanceY", -1, 1, 0, 2, Q("2.72 mm")))
pocket5 = body.newObject("PartDesign::Pocket", "Pocket004")
pocket5.Profile = sketch7
pocket5.Length = 2

# Sketch on XY plane
sketch8 = body.newObject("Sketcher::SketchObject", "Sketch007")
sketch8.AttachmentSupport = (doc.getObject("XY_Plane"), [""])
sketch8.MapMode = "FlatFace"
sketch8.AttachmentOffset = App.Placement(Vector(0, 0, -22.4), App.Rotation())
add_polygon(sketch8, [(13.05, 4.85), (13.05, 1.75), (-7.28, 1.75), (-7.28, 4.85)])  # lines 0-3
add_polygon(sketch8, [(25.95, 4.72), (25.95, 2.72), (20.45, 2.72), (20.45, 4.72)])  # lines 4-7
sketch8.addConstraint(Sketcher.Constraint("Vertical", 0))
sketch8.addConstraint(Sketcher.Constraint("Horizontal", 1))
sketch8.addConstraint(Sketcher.Constraint("Vertical", 2))
sketch8.addConstraint(Sketcher.Constraint("Horizontal", 3))
sketch8.addConstraint(Sketcher.Constraint("Vertical", 4))
sketch8.addConstraint(Sketcher.Constraint("Horizontal", 5))
sketch8.addConstraint(Sketcher.Constraint("Vertical", 6))
sketch8.addConstraint(Sketcher.Constraint("Horizontal", 7))
sketch8.addConstraint(Sketcher.Constraint("DistanceY", 4, 2, 4, 1, Q("2 mm")))
sketch8.addConstraint(Sketcher.Constraint("DistanceX", 5, 2, 5, 1, Q("5.5 mm")))
sketch8.addConstraint(Sketcher.Constraint("DistanceY", 0, 2, 0, 1, Q("3.1 mm")))
sketch8.addConstraint(Sketcher.Constraint("DistanceX", 1, 2, 1, 1, Q("20.33 mm")))
sketch8.addConstraint(Sketcher.Constraint("DistanceX", 0, 2, 4, 2, Q("12.9 mm")))
sketch8.addConstraint(Sketcher.Constraint("DistanceX", -1, 1, 0, 2, Q("13.05 mm")))
sketch8.addConstraint(Sketcher.Constraint("DistanceY", -1, 1, 0, 2, Q("1.75 mm")))
sketch8.addConstraint(Sketcher.Constraint("DistanceY", -1, 1, 4, 2, Q("2.72 mm")))
pocket6 = body.newObject("PartDesign::Pocket", "Pocket005")
pocket6.Profile = sketch8
pocket6.Length = 2
pocket6.Reversed = True

# Sketch on YZ plane
sketch9 = body.newObject("Sketcher::SketchObject", "Sketch008")
sketch9.AttachmentSupport = (doc.getObject("YZ_Plane"), [""])
sketch9.MapMode = "FlatFace"
sketch9.AttachmentOffset = App.Placement(Vector(0, 0, 42.35), App.Rotation())
add_polygon(sketch9, [(4.76, 8.2), (2.56, 8.2), (2.56, -5.7), (4.76, -5.7)])  # lines 0-3
sketch9.addConstraint(Sketcher.Constraint("Horizontal", 0))
sketch9.addConstraint(Sketcher.Constraint("Vertical", 1))
sketch9.addConstraint(Sketcher.Constraint("Horizontal", 2))
sketch9.addConstraint(Sketcher.Constraint("Vertical", 3))
sketch9.addConstraint(Sketcher.Constraint("DistanceX", 0, 2, 0, 1, Q("2.2 mm")))
sketch9.addConstraint(Sketcher.Constraint("DistanceY", 1, 2, 1, 1, Q("13.9 mm")))
sketch9.addConstraint(Sketcher.Constraint("DistanceY", -1, 1, 0, 2, Q("8.2 mm")))
sketch9.addConstraint(Sketcher.Constraint("DistanceX", -1, 1, 0, 2, Q("2.56 mm")))
pocket7 = body.newObject("PartDesign::Pocket", "Pocket006")
pocket7.Profile = sketch9
pocket7.Length = 2

# Sketch on XZ plane
sketch10 = body.newObject("Sketcher::SketchObject", "Sketch009")
sketch10.AttachmentSupport = (doc.getObject("XZ_Plane"), [""])
sketch10.MapMode = "FlatFace"
sketch10.AttachmentOffset = App.Placement(Vector(0, 0, -12.22), App.Rotation())
sketch10.addGeometry(Part.LineSegment(Vector(-24.634434, -2.15, 0), Vector(-34.034434, 0, 0)), False)
sketch10.addGeometry(Part.LineSegment(Vector(-34.034434, 0, 0), Vector(-24.634434, 2.15, 0)), False)
sketch10.addGeometry(Part.LineSegment(Vector(-24.634434, 2.15, 0), Vector(-25.369176, 1.3922, 0)), False)
sketch10.addGeometry(Part.ArcOfCircle(Part.Circle(Vector(-23.933286, 0, 0), Vector(0, 0, 1), 2), math.radians(135.885069), math.radians(224.114931)), False)
sketch10.addGeometry(Part.LineSegment(Vector(-25.369176, -1.3922, 0), Vector(-24.634434, -2.15, 0)), False)
sketch10.addConstraint(Sketcher.Constraint("Coincident", 0, 2, 1, 1))
sketch10.addConstraint(Sketcher.Constraint("Coincident", 1, 2, 2, 1))
sketch10.addConstraint(Sketcher.Constraint("Tangent", 2, 2, 3, 1))
sketch10.addConstraint(Sketcher.Constraint("Tangent", 3, 2, 4, 1))
sketch10.addConstraint(Sketcher.Constraint("Coincident", 4, 2, 0, 1))
sketch10.addConstraint(Sketcher.Constraint("Symmetric", 2, 2, 3, 2, -1))
sketch10.addConstraint(Sketcher.Constraint("PointOnObject", 0, 2, -1))
sketch10.addConstraint(Sketcher.Constraint("Vertical", 1, 2, 4, 2))
sketch10.addConstraint(Sketcher.Constraint("Radius", 3, Q("2 mm")))
sketch10.addConstraint(Sketcher.Constraint("DistanceX", 0, 2, 1, 2, Q("9.4 mm")))
sketch10.addConstraint(Sketcher.Constraint("DistanceY", 4, 2, 1, 2, Q("4.3 mm")))
sketch10.addConstraint(Sketcher.Constraint("DistanceY", -1, 1, 2, 2, Q("1.3922 mm")))
sketch10.addConstraint(Sketcher.Constraint("DistanceX", 3, 3, -1, 1, Q("23.933286 mm")))
pocket8 = body.newObject("PartDesign::Pocket", "Pocket007")
pocket8.Profile = sketch10
pocket8.Length = 0.1
pocket8.Reversed = True

doc.recompute()
